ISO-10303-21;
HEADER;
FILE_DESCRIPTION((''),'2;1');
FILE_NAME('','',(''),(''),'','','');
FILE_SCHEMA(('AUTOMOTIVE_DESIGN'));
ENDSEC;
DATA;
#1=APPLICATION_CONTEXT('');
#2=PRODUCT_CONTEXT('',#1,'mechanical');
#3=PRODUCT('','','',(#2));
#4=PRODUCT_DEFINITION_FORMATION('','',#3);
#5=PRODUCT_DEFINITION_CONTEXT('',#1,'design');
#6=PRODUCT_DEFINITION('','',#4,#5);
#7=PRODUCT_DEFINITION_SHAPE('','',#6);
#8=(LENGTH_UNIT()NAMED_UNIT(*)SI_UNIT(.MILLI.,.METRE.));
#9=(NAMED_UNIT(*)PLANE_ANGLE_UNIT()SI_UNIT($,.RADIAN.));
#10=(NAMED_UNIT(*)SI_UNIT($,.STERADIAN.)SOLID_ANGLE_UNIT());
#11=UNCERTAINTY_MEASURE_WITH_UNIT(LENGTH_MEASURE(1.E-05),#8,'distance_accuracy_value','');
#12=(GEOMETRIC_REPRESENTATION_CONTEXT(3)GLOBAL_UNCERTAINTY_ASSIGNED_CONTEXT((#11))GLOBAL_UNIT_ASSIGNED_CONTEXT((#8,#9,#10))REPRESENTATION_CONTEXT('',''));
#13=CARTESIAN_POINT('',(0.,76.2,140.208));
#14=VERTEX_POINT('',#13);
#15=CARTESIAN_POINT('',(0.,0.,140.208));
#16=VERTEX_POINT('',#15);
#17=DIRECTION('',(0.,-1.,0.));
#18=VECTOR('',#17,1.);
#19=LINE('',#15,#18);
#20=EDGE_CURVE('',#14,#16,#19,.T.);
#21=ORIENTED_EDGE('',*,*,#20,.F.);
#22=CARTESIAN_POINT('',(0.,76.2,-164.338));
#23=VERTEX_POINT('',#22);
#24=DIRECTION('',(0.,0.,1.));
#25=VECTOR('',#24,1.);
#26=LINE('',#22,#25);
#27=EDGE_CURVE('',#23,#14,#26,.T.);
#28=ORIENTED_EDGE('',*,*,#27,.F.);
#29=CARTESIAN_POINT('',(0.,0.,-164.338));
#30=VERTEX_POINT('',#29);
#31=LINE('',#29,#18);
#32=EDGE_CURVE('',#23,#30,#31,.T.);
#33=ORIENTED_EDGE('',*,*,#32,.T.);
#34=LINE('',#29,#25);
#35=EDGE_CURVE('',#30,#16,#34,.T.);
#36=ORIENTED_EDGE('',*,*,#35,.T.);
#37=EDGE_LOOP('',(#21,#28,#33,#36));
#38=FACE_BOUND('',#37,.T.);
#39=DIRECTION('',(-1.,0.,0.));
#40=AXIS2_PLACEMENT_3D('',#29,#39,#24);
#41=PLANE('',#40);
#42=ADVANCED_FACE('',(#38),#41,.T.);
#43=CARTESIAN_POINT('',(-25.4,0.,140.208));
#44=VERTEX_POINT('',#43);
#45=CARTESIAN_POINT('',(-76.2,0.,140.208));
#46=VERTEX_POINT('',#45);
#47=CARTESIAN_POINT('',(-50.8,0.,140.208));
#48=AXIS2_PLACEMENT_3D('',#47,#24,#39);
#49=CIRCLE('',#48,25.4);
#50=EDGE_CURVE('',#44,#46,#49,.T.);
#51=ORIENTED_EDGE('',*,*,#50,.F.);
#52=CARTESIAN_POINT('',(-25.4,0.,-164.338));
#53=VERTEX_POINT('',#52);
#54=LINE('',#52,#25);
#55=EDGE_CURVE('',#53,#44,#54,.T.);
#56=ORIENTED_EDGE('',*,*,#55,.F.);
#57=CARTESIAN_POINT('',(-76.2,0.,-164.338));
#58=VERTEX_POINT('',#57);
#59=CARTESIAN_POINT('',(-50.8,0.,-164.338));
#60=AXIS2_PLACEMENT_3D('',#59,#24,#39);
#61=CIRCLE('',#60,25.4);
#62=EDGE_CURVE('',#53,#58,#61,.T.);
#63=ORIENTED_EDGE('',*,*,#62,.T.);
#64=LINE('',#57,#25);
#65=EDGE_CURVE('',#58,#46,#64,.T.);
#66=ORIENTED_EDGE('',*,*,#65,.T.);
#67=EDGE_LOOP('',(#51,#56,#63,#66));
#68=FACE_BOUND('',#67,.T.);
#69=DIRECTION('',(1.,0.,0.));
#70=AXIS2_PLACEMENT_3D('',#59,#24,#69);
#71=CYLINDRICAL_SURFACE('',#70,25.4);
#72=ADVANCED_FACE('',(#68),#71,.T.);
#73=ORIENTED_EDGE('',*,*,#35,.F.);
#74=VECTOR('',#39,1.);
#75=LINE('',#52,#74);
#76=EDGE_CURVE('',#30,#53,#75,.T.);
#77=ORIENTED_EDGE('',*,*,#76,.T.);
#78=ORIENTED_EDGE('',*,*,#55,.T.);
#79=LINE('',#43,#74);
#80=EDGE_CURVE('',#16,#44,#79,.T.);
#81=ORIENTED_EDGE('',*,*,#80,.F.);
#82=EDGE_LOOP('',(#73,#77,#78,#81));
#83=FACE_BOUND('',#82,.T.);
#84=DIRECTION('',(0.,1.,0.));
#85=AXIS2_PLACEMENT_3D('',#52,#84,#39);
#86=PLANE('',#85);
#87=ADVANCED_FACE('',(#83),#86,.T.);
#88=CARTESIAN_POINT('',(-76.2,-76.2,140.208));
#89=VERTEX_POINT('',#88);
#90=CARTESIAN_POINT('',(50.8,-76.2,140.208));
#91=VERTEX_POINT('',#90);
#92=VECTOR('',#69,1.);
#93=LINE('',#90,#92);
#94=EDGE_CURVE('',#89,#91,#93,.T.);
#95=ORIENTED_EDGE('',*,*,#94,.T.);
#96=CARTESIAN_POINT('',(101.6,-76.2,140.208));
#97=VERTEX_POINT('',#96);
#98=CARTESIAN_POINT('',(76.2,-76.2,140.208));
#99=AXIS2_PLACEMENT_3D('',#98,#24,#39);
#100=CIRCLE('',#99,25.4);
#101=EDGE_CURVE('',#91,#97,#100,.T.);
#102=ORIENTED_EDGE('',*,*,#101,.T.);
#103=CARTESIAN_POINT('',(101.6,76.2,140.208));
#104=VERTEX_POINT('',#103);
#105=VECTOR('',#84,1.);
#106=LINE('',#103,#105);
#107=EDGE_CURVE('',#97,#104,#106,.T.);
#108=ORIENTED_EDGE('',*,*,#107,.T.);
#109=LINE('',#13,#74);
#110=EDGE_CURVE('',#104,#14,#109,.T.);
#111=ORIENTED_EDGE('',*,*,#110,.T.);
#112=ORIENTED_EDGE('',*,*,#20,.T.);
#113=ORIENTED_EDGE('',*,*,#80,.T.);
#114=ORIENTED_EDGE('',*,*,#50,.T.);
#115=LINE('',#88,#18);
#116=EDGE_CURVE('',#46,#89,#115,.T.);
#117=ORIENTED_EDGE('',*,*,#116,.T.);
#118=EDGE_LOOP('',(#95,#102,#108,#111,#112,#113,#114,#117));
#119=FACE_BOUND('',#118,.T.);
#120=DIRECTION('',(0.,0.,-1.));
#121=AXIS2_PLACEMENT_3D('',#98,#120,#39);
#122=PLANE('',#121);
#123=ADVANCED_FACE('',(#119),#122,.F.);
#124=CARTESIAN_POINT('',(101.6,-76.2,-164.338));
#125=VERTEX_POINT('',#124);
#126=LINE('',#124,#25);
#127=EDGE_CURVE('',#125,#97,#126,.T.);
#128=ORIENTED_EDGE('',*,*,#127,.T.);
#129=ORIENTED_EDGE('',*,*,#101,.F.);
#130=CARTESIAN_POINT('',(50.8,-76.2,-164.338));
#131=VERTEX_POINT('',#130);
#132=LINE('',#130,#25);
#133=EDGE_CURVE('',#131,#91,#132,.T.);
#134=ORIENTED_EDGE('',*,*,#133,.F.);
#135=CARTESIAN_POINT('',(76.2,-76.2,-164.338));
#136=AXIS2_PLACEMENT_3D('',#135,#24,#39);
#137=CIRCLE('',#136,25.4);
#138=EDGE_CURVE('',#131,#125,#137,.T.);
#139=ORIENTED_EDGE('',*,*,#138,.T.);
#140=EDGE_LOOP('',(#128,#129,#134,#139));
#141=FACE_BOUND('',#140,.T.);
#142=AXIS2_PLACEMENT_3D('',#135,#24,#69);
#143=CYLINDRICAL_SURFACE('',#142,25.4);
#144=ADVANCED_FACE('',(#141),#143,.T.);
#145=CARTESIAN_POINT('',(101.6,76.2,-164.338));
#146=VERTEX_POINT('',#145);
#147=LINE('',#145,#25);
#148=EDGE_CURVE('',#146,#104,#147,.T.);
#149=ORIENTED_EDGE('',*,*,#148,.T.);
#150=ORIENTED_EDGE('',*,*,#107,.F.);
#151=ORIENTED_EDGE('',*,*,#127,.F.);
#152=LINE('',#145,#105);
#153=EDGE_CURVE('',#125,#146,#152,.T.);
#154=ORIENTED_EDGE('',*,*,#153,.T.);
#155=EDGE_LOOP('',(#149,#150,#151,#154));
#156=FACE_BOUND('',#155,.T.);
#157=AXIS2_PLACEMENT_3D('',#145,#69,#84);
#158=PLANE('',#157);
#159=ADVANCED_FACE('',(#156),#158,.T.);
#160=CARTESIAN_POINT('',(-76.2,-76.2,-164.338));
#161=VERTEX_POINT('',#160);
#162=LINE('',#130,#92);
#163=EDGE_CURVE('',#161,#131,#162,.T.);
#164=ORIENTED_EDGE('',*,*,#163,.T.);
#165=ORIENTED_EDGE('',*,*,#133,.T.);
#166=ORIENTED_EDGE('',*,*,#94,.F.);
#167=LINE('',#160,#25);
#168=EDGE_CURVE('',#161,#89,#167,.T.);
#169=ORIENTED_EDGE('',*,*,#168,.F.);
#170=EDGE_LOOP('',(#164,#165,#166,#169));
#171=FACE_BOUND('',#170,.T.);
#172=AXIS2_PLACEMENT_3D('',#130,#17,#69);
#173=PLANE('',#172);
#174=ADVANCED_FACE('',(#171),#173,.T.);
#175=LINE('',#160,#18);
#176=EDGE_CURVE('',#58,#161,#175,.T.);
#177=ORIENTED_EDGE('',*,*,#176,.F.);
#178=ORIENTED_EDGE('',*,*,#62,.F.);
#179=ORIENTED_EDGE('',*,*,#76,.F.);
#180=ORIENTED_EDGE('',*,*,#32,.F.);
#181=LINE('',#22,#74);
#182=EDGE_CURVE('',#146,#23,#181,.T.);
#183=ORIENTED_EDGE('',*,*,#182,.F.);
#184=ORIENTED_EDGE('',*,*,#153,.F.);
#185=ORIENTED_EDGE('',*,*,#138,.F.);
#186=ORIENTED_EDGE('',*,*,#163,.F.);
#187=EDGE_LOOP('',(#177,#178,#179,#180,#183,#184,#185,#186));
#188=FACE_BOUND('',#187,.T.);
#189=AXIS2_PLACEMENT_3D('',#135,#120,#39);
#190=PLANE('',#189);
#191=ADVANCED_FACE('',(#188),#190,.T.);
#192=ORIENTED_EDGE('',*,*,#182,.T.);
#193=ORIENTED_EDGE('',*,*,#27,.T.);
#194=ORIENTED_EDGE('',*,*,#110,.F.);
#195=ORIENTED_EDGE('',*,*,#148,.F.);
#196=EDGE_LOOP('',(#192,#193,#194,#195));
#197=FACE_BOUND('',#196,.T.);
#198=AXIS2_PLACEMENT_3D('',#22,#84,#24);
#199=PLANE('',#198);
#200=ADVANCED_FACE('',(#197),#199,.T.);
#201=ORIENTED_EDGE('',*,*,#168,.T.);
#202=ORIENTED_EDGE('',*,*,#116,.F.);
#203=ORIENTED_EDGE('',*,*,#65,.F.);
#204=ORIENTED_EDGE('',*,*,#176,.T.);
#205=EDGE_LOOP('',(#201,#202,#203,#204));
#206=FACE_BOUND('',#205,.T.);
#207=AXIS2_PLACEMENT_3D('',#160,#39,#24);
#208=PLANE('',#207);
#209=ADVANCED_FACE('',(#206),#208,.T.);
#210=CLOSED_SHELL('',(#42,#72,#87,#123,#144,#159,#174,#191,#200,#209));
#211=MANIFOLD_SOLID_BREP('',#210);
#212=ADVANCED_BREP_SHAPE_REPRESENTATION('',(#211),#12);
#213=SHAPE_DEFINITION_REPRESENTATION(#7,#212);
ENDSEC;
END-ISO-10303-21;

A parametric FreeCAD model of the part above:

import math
import FreeCAD as App
import Part
import Sketcher

V = App.Vector
Q = App.Units.Quantity

doc = App.newDocument("Part")
params = doc.addObject("Spreadsheet::Sheet", "Params")
for row, (alias, value) in enumerate([
    ("sketch1_radius", "1 in"),
    ("sketch1_width", "1 in"),
    ("sketch1_width2", "5 in"),
    ("sketch1_height", "3 in"),
    ("pad1_length", "5.52 in"),
    ("pad1_length2", "6.47 in"),
], start=1):
    params.set(f"A{row}", alias)
    params.set(f"B{row}", "=" + value)
    params.setAlias(f"B{row}", alias)

body = doc.addObject("PartDesign::Body", "Body")

# Sketch on XY plane
sketch1 = body.newObject("Sketcher::SketchObject", "Sketch")
sketch1.AttachmentSupport = (doc.getObject("XY_Plane"), [""])
sketch1.MapMode = "FlatFace"
sketch1.addGeometry(Part.LineSegment(V(0, 76, 0), V(0, 0, 0)), False)
sketch1.addGeometry(Part.LineSegment(V(0, 0, 0), V(-25, 0, 0)), False)
sketch1.addGeometry(Part.ArcOfCircle(Part.Circle(V(-51, 0, 0), V(0, 0, 1), 25), math.radians(0), math.radians(180)), False)
sketch1.addGeometry(Part.LineSegment(V(-76, 0, 0), V(-76, -76, 0)), False)
sketch1.addGeometry(Part.LineSegment(V(-76, -76, 0), V(51, -76, 0)), False)
sketch1.addGeometry(Part.ArcOfCircle(Part.Circle(V(76, -76, 0), V(0, 0, 1), 25), math.radians(180), math.radians(360)), False)
sketch1.addGeometry(Part.LineSegment(V(102, -76, 0), V(102, 76, 0)), False)
sketch1.addGeometry(Part.LineSegment(V(102, 76, 0), V(0, 76, 0)), False)
sketch1.addConstraint(Sketcher.Constraint("Coincident", 0, 2, 1, 1))
sketch1.addConstraint(Sketcher.Constraint("Coincident", 1, 2, 2, 1))
sketch1.addConstraint(Sketcher.Constraint("Tangent", 2, 2, 3, 1))
sketch1.addConstraint(Sketcher.Constraint("Coincident", 3, 2, 4, 1))
sketch1.addConstraint(Sketcher.Constraint("Coincident", 4, 2, 5, 1))
sketch1.addConstraint(Sketcher.Constraint("Tangent", 5, 2, 6, 1))
sketch1.addConstraint(Sketcher.Constraint("Coincident", 6, 2, 7, 1))
sketch1.addConstraint(Sketcher.Constraint("Coincident", 7, 2, 0, 1))
sketch1.addConstraint(Sketcher.Constraint("Vertical", 0))
sketch1.addConstraint(Sketcher.Constraint("Horizontal", 1))
sketch1.addConstraint(Sketcher.Constraint("Vertical", 3))
sketch1.addConstraint(Sketcher.Constraint("Horizontal", 4))
sketch1.addConstraint(Sketcher.Constraint("Vertical", 6))
sketch1.addConstraint(Sketcher.Constraint("Horizontal", 7))
sketch1.addConstraint(Sketcher.Constraint("Coincident", 0, 2, -1, 1))
sketch1.addConstraint(Sketcher.Constraint("Equal", 2, 5))
sketch1.addConstraint(Sketcher.Constraint("PointOnObject", 2, 3, -1))
sketch1.addConstraint(Sketcher.Constraint("Horizontal", 5, 3, 3, 2))
sketch1.addConstraint(Sketcher.Constraint("Equal", 0, 3))
sketch1.addConstraint(Sketcher.Constraint("Radius", 2, Q("1 in")))
sketch1.addConstraint(Sketcher.Constraint("DistanceX", 1, 2, 1, 1, Q("1 in")))
sketch1.addConstraint(Sketcher.Constraint("DistanceX", 4, 1, 4, 2, Q("5 in")))
sketch1.addConstraint(Sketcher.Constraint("DistanceY", 0, 2, 0, 1, Q("3 in")))
sketch1.setExpression("Constraints[19]", "Params.sketch1_radius")
sketch1.setExpression("Constraints[20]", "Params.sketch1_width")
sketch1.setExpression("Constraints[21]", "Params.sketch1_width2")
sketch1.setExpression("Constraints[22]", "Params.sketch1_height")
pad1 = body.newObject("PartDesign::Pad", "Pad")
pad1.Profile = sketch1
pad1.Type = "TwoLengths"
pad1.setExpression("Length", "Params.pad1_length")
pad1.setExpression("Length2", "Params.pad1_length2")

doc.recompute()
